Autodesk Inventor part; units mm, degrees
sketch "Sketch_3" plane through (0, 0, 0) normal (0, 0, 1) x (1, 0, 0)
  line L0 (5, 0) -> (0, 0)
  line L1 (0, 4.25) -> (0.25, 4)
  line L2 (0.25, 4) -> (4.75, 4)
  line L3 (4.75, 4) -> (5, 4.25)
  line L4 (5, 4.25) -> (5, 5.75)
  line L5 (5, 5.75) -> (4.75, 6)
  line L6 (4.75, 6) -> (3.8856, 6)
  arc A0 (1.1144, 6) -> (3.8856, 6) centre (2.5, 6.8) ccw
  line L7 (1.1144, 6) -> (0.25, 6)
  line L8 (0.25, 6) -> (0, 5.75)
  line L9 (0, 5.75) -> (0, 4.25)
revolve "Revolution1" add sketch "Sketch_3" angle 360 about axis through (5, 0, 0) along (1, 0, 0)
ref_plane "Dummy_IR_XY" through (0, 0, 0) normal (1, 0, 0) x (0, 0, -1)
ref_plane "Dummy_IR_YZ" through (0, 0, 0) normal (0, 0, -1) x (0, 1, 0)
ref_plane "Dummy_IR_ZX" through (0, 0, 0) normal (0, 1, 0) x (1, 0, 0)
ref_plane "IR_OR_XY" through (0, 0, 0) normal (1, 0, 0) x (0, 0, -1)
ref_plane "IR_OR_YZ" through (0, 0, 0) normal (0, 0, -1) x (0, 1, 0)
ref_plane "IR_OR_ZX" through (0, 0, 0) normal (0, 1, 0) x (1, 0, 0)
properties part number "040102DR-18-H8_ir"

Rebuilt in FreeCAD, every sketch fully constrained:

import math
import FreeCAD as App
import Part
import Sketcher

doc = App.newDocument("Part")
body = doc.addObject("PartDesign::Body", "Body")

sketch1 = body.newObject("Sketcher::SketchObject", "Sketch")
sketch1.AttachmentSupport = (doc.getObject("XY_Plane"), [""])
sketch1.MapMode = "FlatFace"
sketch1.addGeometry([
    Part.LineSegment(App.Vector(0, 5.75, 0), App.Vector(0, 4.25, 0)),
    Part.LineSegment(App.Vector(0, 4.25, 0), App.Vector(0.25, 4, 0)),
    Part.LineSegment(App.Vector(0.25, 4, 0), App.Vector(4.75, 4, 0)),
    Part.LineSegment(App.Vector(4.75, 4, 0), App.Vector(5, 4.25, 0)),
    Part.LineSegment(App.Vector(5, 4.25, 0), App.Vector(5, 5.75, 0)),
    Part.LineSegment(App.Vector(5, 5.75, 0), App.Vector(4.75, 6, 0)),
    Part.LineSegment(App.Vector(4.75, 6, 0), App.Vector(3.89, 6, 0)),
    Part.ArcOfCircle(Part.Circle(App.Vector(2.5, 6.8, 0), App.Vector(0, 0, 1), 1.6), math.radians(-150), math.radians(-30)),
    Part.LineSegment(App.Vector(1.11, 6, 0), App.Vector(0.25, 6, 0)),
    Part.LineSegment(App.Vector(0.25, 6, 0), App.Vector(0, 5.75, 0)),
], False)
sketch1.addConstraint([
    Sketcher.Constraint("Coincident", 0, 2, 1, 1),
    Sketcher.Constraint("Coincident", 1, 2, 2, 1),
    Sketcher.Constraint("Coincident", 2, 2, 3, 1),
    Sketcher.Constraint("Coincident", 3, 2, 4, 1),
    Sketcher.Constraint("Coincident", 4, 2, 5, 1),
    Sketcher.Constraint("Coincident", 5, 2, 6, 1),
    Sketcher.Constraint("Coincident", 6, 2, 7, 2),
    Sketcher.Constraint("Coincident", 7, 1, 8, 1),
    Sketcher.Constraint("Coincident", 8, 2, 9, 1),
    Sketcher.Constraint("Coincident", 9, 2, 0, 1),
    Sketcher.Constraint("Vertical", 0),
    Sketcher.Constraint("Horizontal", 2),
    Sketcher.Constraint("Vertical", 4),
    Sketcher.Constraint("Horizontal", 6),
    Sketcher.Constraint("Horizontal", 8),
    Sketcher.Constraint("PointOnObject", 0, 2, -2),
    Sketcher.Constraint("Perpendicular", 1, 3),
    Sketcher.Constraint("Perpendicular", 3, 5),
    Sketcher.Constraint("Perpendicular", 5, 9),
    Sketcher.Constraint("Horizontal", 0, 2, 3, 2),
    Sketcher.Constraint("Horizontal", 6, 2, 7, 1),
    Sketcher.Constraint("Horizontal", 4, 2, 9, 2),
    Sketcher.Constraint("Vertical", 2, 2, 5, 2),
    Sketcher.Constraint("Vertical", 1, 2, 8, 2),
    Sketcher.Constraint("Equal", 6, 8),
    Sketcher.Constraint("Radius", 7, 1.6),
    Sketcher.Constraint("DistanceX", 2, 1, 2, 2, 4.5),
    Sketcher.Constraint("DistanceY", 0, 2, 0, 1, 1.5),
    Sketcher.Constraint("DistanceY", -1, 1, 1, 2, 4.0),
    Sketcher.Constraint("DistanceX", -1, 1, 3, 2, 5.0),
    Sketcher.Constraint("DistanceY", -1, 1, 7, 3, 6.8),
])
revolution = body.newObject("PartDesign::Revolution", "Revolution")
revolution.Profile = sketch1
revolution.ReferenceAxis = (sketch1, ["H_Axis"])
revolution.Angle = 360

doc.recompute()
